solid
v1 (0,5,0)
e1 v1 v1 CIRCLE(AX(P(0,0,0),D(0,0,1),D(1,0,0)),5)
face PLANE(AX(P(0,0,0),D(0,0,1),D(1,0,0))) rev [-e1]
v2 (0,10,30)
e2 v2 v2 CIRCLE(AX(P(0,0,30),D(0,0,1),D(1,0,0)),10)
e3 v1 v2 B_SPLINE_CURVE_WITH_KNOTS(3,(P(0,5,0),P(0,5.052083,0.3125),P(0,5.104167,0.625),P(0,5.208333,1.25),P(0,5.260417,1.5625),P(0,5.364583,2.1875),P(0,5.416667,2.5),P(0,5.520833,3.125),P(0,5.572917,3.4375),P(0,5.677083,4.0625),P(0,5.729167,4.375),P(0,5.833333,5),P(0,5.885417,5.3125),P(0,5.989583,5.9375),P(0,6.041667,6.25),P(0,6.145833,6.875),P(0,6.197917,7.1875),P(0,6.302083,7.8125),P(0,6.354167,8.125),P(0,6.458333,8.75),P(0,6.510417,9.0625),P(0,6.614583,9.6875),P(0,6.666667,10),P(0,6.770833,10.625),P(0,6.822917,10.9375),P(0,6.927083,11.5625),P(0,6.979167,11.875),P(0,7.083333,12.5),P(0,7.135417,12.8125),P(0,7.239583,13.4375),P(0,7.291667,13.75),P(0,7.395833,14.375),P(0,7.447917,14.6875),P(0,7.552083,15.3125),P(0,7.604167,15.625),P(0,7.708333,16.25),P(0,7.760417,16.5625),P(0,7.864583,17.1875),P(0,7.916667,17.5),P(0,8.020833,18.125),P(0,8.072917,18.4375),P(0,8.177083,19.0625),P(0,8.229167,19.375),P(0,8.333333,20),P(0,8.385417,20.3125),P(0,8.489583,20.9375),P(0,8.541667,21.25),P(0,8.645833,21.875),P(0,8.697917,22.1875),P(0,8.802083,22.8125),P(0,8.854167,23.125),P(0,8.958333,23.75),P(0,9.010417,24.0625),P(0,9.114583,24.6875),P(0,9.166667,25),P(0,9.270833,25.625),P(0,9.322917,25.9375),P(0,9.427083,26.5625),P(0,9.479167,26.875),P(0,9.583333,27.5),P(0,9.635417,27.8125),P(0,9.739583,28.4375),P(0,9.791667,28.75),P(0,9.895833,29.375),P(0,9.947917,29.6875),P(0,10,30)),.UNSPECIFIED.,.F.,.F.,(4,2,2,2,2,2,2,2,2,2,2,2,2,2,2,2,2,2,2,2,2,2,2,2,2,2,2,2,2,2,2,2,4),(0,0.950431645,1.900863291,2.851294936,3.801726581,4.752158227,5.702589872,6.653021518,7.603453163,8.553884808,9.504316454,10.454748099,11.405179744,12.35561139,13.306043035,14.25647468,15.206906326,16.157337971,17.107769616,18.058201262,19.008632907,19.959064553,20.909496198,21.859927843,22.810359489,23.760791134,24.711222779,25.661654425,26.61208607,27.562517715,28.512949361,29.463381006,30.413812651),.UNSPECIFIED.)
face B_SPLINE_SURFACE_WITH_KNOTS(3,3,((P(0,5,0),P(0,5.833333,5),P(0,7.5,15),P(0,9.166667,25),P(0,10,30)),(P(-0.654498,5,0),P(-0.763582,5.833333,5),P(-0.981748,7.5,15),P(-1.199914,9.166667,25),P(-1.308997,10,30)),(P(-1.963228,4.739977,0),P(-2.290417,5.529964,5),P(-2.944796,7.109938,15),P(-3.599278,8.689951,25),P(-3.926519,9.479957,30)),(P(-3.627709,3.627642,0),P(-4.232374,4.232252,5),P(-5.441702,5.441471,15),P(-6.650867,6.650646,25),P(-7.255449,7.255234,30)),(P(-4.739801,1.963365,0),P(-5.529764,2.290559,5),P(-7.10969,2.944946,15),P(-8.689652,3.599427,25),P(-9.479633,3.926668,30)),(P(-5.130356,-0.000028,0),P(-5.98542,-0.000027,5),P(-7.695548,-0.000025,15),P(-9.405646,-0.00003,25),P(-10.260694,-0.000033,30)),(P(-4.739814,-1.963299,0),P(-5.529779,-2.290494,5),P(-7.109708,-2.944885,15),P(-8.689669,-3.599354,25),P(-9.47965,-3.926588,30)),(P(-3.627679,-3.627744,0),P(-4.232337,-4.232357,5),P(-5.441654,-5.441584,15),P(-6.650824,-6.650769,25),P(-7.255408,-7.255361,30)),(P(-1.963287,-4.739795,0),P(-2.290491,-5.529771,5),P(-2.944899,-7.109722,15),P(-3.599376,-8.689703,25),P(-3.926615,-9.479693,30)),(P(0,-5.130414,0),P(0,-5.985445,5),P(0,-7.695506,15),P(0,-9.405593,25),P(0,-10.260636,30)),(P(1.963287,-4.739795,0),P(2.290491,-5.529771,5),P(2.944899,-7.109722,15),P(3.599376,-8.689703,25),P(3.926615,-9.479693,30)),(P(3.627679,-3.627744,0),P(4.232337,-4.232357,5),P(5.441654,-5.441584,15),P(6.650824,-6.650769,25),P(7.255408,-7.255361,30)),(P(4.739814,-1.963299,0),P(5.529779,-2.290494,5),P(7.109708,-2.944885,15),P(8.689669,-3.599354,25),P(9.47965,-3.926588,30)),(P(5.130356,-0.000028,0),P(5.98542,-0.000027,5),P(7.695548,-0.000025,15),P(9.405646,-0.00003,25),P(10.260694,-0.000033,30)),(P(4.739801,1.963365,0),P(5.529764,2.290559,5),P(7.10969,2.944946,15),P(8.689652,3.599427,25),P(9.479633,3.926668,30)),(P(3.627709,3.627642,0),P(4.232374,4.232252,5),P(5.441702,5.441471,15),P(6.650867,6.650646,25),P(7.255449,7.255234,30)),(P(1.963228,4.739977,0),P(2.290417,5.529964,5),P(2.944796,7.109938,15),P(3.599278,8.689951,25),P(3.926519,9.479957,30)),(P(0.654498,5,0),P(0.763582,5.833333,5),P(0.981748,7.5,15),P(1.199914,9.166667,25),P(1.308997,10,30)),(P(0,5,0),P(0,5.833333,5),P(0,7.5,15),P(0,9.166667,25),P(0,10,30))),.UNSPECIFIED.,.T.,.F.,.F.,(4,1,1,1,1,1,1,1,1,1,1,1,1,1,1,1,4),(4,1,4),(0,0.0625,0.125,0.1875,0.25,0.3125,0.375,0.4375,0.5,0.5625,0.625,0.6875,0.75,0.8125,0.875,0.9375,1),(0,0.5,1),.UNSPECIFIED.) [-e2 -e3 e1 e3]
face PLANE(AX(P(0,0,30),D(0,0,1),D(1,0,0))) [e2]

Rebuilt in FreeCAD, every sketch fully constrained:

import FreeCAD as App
import Part
import Sketcher
Q = App.Units.Quantity

doc = App.newDocument("Part")
body = doc.addObject("PartDesign::Body", "Body")

# Sketch on XY plane
sketch1 = doc.addObject("Sketcher::SketchObject", "Sketch")
body.addObject(sketch1)
sketch1.AttachmentSupport = (doc.XY_Plane, [""])
sketch1.MapMode = "FlatFace"
sketch1.addGeometry(Part.Circle(App.Vector(0, 0, 0), App.Vector(0, 0, 1), 5), False)
sketch1.addConstraint([
    Sketcher.Constraint("Coincident", 0, 3, -1, 1),
    Sketcher.Constraint("Diameter", 0, Q("10 mm")),
])

# Sketch on XY plane
sketch2 = doc.addObject("Sketcher::SketchObject", "Sketch001")
body.addObject(sketch2)
sketch2.AttachmentSupport = (doc.XY_Plane, [""])
sketch2.MapMode = "FlatFace"
sketch2.AttachmentOffset = App.Placement(App.Vector(0, 0, 15), App.Rotation())
sketch2.addGeometry(Part.Circle(App.Vector(0, 0, 0), App.Vector(0, 0, 1), 8), False)
sketch2.addConstraint([
    Sketcher.Constraint("Coincident", 0, 3, -1, 1),
    Sketcher.Constraint("Diameter", 0, Q("15 mm")),
])

# Sketch on XY plane
sketch3 = doc.addObject("Sketcher::SketchObject", "Sketch002")
body.addObject(sketch3)
sketch3.AttachmentSupport = (doc.XY_Plane, [""])
sketch3.MapMode = "FlatFace"
sketch3.AttachmentOffset = App.Placement(App.Vector(0, 0, 30), App.Rotation())
sketch3.addGeometry(Part.Circle(App.Vector(0, 0, 0), App.Vector(0, 0, 1), 10), False)
sketch3.addConstraint([
    Sketcher.Constraint("Coincident", 0, 3, -1, 1),
    Sketcher.Constraint("Diameter", 0, Q("20 mm")),
])

additiveloft = doc.addObject("PartDesign::AdditiveLoft", "AdditiveLoft")
body.addObject(additiveloft)
additiveloft.Profile = sketch1
additiveloft.Sections = [sketch2, sketch3]

doc.recompute()
